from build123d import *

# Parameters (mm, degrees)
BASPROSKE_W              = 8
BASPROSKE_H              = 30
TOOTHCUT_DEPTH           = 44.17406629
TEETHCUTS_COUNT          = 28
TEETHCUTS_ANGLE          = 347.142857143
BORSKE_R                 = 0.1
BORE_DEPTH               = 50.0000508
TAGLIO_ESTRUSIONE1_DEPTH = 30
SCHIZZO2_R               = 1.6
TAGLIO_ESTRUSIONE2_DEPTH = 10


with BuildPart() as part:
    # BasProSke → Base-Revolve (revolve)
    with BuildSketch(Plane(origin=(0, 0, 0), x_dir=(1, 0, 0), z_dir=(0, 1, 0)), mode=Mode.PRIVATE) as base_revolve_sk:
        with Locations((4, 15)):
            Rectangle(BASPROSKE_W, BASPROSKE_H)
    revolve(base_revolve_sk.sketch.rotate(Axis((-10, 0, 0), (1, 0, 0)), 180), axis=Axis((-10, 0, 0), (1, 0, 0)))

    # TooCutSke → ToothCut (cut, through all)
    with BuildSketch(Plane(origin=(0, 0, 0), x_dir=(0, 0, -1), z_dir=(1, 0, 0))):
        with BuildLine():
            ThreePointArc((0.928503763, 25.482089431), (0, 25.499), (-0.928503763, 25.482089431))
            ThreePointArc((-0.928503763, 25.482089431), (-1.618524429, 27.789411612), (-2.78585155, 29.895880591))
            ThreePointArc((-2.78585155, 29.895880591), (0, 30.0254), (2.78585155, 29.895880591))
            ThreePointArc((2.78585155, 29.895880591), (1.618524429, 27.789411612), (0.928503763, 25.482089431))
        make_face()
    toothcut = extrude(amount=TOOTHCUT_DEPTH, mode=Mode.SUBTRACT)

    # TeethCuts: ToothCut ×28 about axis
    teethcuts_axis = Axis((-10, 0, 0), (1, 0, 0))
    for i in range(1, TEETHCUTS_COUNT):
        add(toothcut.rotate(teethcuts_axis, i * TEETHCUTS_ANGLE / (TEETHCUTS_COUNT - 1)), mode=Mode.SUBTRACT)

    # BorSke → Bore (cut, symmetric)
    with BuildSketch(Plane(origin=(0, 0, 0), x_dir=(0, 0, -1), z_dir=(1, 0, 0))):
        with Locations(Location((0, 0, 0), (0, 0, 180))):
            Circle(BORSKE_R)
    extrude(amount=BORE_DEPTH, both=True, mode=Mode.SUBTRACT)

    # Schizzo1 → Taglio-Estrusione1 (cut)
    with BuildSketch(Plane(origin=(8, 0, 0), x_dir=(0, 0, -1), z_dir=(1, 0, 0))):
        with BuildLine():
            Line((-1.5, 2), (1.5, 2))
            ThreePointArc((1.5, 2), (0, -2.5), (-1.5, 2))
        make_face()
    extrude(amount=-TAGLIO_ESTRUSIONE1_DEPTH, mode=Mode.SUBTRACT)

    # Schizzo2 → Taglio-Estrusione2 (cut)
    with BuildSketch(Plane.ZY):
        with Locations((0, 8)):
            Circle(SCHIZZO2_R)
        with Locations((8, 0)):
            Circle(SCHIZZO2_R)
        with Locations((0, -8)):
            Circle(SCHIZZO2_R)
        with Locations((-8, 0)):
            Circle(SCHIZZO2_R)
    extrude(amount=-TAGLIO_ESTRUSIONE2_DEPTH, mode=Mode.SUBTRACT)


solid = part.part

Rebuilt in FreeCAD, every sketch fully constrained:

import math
import FreeCAD as App
import Part
import Sketcher
from FreeCAD import Vector
Q = App.Units.Quantity


def add_polygon(sketch, points):
    """Adds a closed chain of lines whose ends are joined by coincident constraints."""
    first, n = sketch.GeometryCount, len(points)
    for a, b in zip(points, points[1:] + points[:1]):
        sketch.addGeometry(Part.LineSegment(App.Vector(*a, 0), App.Vector(*b, 0)), False)
    for i in range(n):
        sketch.addConstraint(Sketcher.Constraint("Coincident", first + i, 2, first + (i + 1) % n, 1))

doc = App.newDocument("Part")
body = doc.addObject("PartDesign::Body", "Body")

sketch1 = body.newObject("Sketcher::SketchObject", "Sketch")
sketch1.AttachmentSupport = (doc.getObject("XZ_Plane"), [""])
sketch1.MapMode = "FlatFace"
add_polygon(sketch1, [(0, -30), (0, 0), (8, 0), (8, -30)])
sketch1.addConstraint(Sketcher.Constraint("Vertical", 0))
sketch1.addConstraint(Sketcher.Constraint("Horizontal", 1))
sketch1.addConstraint(Sketcher.Constraint("Vertical", 2))
sketch1.addConstraint(Sketcher.Constraint("Horizontal", 3))
sketch1.addConstraint(Sketcher.Constraint("Coincident", 0, 2, -1, 1))
sketch1.addConstraint(Sketcher.Constraint("DistanceX", 1, 1, 1, 2, Q("8 mm")))
sketch1.addConstraint(Sketcher.Constraint("DistanceY", 0, 1, 0, 2, Q("30 mm")))
revolution = body.newObject("PartDesign::Revolution", "Revolution")
revolution.Profile = sketch1
revolution.ReferenceAxis = (sketch1, ["H_Axis"])
revolution.Angle = 360

sketch2 = body.newObject("Sketcher::SketchObject", "Sketch001")
sketch2.AttachmentSupport = (doc.getObject("YZ_Plane"), [""])
sketch2.MapMode = "FlatFace"
sketch2.addGeometry(Part.ArcOfCircle(Part.Circle(Vector(0, 0, 0), Vector(0, 0, 1), 25.5), math.radians(-2.09), math.radians(2.09)), False)
sketch2.addGeometry(Part.ArcOfCircle(Part.Circle(Vector(23.4, -11.9, 0), Vector(0, 0, 1), 11.2), math.radians(55), math.radians(80)), False)
sketch2.addGeometry(Part.ArcOfCircle(Part.Circle(Vector(0, 0, 0), Vector(0, 0, 1), 30), math.radians(-5.32), math.radians(5.32)), False)
sketch2.addGeometry(Part.ArcOfCircle(Part.Circle(Vector(23.4, 11.9, 0), Vector(0, 0, 1), 11.2), math.radians(-80), math.radians(-55)), False)
sketch2.addConstraint(Sketcher.Constraint("Coincident", 0, 1, 1, 2))
sketch2.addConstraint(Sketcher.Constraint("Coincident", 1, 1, 2, 1))
sketch2.addConstraint(Sketcher.Constraint("Coincident", 2, 2, 3, 2))
sketch2.addConstraint(Sketcher.Constraint("Coincident", 3, 1, 0, 2))
sketch2.addConstraint(Sketcher.Constraint("Coincident", 0, 3, -1, 1))
sketch2.addConstraint(Sketcher.Constraint("Coincident", 2, 3, -1, 1))
sketch2.addConstraint(Sketcher.Constraint("Equal", 1, 3))
sketch2.addConstraint(Sketcher.Constraint("Symmetric", 1, 3, 3, 3, -1))
sketch2.addConstraint(Sketcher.Constraint("Radius", 1, Q("11.2 mm")))
sketch2.addConstraint(Sketcher.Constraint("Radius", 0, Q("25.499 mm")))
sketch2.addConstraint(Sketcher.Constraint("Radius", 2, Q("30.0254 mm")))
sketch2.addConstraint(Sketcher.Constraint("DistanceY", 1, 3, 1, 1, Q("9.155901 mm")))
sketch2.addConstraint(Sketcher.Constraint("DistanceX", -1, 1, 1, 3, Q("23.44534 mm")))
pocket1 = body.newObject("PartDesign::Pocket", "Pocket")
pocket1.Profile = sketch2
pocket1.Type = "ThroughAll"
pocket1.Reversed = True
doc.recompute()

polarpattern = body.newObject("PartDesign::PolarPattern", "PolarPattern")
polarpattern.Originals = [pocket1]
polarpattern.Axis = (doc.getObject("X_Axis"), [""])
polarpattern.Angle = 360
polarpattern.Occurrences = 28
body.Tip = polarpattern

sketch3 = body.newObject("Sketcher::SketchObject", "Sketch002")
sketch3.AttachmentSupport = (doc.getObject("YZ_Plane"), [""])
sketch3.MapMode = "FlatFace"
sketch3.addGeometry(Part.Circle(Vector(0, 0, 0), Vector(0, 0, 1), 0.1), False)
sketch3.addConstraint(Sketcher.Constraint("Coincident", 0, 3, -1, 1))
sketch3.addConstraint(Sketcher.Constraint("Diameter", 0, Q("0.2 mm")))
pocket2 = body.newObject("PartDesign::Pocket", "Pocket001")
pocket2.Profile = sketch3
pocket2.Length = 100.000102
pocket2.Midplane = True

sketch4 = body.newObject("Sketcher::SketchObject", "Sketch003")
sketch4.AttachmentSupport = (doc.getObject("YZ_Plane"), [""])
sketch4.MapMode = "FlatFace"
sketch4.AttachmentOffset = App.Placement(Vector(0, 0, 8), App.Rotation())
sketch4.addGeometry(Part.LineSegment(Vector(2, -1.5, 0), Vector(2, 1.5, 0)), False)
sketch4.addGeometry(Part.ArcOfCircle(Part.Circle(Vector(0, 0, 0), Vector(0, 0, 1), 2.5), math.radians(37), math.radians(323)), False)
sketch4.addConstraint(Sketcher.Constraint("Coincident", 0, 1, 1, 2))
sketch4.addConstraint(Sketcher.Constraint("Coincident", 1, 1, 0, 2))
sketch4.addConstraint(Sketcher.Constraint("Vertical", 0))
sketch4.addConstraint(Sketcher.Constraint("Coincident", 1, 3, -1, 1))
sketch4.addConstraint(Sketcher.Constraint("Radius", 1, Q("2.5 mm")))
sketch4.addConstraint(Sketcher.Constraint("DistanceY", 0, 1, 0, 2, Q("3 mm")))
pocket3 = body.newObject("PartDesign::Pocket", "Pocket002")
pocket3.Profile = sketch4
pocket3.Length = 30

sketch5 = body.newObject("Sketcher::SketchObject", "Sketch004")
sketch5.AttachmentSupport = (doc.getObject("YZ_Plane"), [""])
sketch5.MapMode = "FlatFace"
sketch5.addGeometry(Part.Circle(Vector(8, 0, 0), Vector(0, 0, 1), 1.6), False)
sketch5.addGeometry(Part.Circle(Vector(0, 8, 0), Vector(0, 0, 1), 1.6), False)
sketch5.addGeometry(Part.Circle(Vector(-8, 0, 0), Vector(0, 0, 1), 1.6), False)
sketch5.addGeometry(Part.Circle(Vector(0, -8, 0), Vector(0, 0, 1), 1.6), False)
sketch5.addConstraint(Sketcher.Constraint("Equal", 0, 1))
sketch5.addConstraint(Sketcher.Constraint("Equal", 1, 2))
sketch5.addConstraint(Sketcher.Constraint("Equal", 2, 3))
sketch5.addConstraint(Sketcher.Constraint("Symmetric", 0, 3, 2, 3, -1, 1))
sketch5.addConstraint(Sketcher.Constraint("Symmetric", 1, 3, 3, 3, -1, 1))
sketch5.addConstraint(Sketcher.Constraint("PointOnObject", 0, 3, -1))
sketch5.addConstraint(Sketcher.Constraint("PointOnObject", 1, 3, -2))
sketch5.addConstraint(Sketcher.Constraint("Diameter", 0, Q("3.2 mm")))
sketch5.addConstraint(Sketcher.Constraint("DistanceX", -1, 1, 0, 3, Q("8 mm")))
sketch5.addConstraint(Sketcher.Constraint("DistanceY", -1, 1, 1, 3, Q("8 mm")))
pocket4 = body.newObject("PartDesign::Pocket", "Pocket003")
pocket4.Profile = sketch5
pocket4.Length = 10
pocket4.Reversed = True

doc.recompute()
